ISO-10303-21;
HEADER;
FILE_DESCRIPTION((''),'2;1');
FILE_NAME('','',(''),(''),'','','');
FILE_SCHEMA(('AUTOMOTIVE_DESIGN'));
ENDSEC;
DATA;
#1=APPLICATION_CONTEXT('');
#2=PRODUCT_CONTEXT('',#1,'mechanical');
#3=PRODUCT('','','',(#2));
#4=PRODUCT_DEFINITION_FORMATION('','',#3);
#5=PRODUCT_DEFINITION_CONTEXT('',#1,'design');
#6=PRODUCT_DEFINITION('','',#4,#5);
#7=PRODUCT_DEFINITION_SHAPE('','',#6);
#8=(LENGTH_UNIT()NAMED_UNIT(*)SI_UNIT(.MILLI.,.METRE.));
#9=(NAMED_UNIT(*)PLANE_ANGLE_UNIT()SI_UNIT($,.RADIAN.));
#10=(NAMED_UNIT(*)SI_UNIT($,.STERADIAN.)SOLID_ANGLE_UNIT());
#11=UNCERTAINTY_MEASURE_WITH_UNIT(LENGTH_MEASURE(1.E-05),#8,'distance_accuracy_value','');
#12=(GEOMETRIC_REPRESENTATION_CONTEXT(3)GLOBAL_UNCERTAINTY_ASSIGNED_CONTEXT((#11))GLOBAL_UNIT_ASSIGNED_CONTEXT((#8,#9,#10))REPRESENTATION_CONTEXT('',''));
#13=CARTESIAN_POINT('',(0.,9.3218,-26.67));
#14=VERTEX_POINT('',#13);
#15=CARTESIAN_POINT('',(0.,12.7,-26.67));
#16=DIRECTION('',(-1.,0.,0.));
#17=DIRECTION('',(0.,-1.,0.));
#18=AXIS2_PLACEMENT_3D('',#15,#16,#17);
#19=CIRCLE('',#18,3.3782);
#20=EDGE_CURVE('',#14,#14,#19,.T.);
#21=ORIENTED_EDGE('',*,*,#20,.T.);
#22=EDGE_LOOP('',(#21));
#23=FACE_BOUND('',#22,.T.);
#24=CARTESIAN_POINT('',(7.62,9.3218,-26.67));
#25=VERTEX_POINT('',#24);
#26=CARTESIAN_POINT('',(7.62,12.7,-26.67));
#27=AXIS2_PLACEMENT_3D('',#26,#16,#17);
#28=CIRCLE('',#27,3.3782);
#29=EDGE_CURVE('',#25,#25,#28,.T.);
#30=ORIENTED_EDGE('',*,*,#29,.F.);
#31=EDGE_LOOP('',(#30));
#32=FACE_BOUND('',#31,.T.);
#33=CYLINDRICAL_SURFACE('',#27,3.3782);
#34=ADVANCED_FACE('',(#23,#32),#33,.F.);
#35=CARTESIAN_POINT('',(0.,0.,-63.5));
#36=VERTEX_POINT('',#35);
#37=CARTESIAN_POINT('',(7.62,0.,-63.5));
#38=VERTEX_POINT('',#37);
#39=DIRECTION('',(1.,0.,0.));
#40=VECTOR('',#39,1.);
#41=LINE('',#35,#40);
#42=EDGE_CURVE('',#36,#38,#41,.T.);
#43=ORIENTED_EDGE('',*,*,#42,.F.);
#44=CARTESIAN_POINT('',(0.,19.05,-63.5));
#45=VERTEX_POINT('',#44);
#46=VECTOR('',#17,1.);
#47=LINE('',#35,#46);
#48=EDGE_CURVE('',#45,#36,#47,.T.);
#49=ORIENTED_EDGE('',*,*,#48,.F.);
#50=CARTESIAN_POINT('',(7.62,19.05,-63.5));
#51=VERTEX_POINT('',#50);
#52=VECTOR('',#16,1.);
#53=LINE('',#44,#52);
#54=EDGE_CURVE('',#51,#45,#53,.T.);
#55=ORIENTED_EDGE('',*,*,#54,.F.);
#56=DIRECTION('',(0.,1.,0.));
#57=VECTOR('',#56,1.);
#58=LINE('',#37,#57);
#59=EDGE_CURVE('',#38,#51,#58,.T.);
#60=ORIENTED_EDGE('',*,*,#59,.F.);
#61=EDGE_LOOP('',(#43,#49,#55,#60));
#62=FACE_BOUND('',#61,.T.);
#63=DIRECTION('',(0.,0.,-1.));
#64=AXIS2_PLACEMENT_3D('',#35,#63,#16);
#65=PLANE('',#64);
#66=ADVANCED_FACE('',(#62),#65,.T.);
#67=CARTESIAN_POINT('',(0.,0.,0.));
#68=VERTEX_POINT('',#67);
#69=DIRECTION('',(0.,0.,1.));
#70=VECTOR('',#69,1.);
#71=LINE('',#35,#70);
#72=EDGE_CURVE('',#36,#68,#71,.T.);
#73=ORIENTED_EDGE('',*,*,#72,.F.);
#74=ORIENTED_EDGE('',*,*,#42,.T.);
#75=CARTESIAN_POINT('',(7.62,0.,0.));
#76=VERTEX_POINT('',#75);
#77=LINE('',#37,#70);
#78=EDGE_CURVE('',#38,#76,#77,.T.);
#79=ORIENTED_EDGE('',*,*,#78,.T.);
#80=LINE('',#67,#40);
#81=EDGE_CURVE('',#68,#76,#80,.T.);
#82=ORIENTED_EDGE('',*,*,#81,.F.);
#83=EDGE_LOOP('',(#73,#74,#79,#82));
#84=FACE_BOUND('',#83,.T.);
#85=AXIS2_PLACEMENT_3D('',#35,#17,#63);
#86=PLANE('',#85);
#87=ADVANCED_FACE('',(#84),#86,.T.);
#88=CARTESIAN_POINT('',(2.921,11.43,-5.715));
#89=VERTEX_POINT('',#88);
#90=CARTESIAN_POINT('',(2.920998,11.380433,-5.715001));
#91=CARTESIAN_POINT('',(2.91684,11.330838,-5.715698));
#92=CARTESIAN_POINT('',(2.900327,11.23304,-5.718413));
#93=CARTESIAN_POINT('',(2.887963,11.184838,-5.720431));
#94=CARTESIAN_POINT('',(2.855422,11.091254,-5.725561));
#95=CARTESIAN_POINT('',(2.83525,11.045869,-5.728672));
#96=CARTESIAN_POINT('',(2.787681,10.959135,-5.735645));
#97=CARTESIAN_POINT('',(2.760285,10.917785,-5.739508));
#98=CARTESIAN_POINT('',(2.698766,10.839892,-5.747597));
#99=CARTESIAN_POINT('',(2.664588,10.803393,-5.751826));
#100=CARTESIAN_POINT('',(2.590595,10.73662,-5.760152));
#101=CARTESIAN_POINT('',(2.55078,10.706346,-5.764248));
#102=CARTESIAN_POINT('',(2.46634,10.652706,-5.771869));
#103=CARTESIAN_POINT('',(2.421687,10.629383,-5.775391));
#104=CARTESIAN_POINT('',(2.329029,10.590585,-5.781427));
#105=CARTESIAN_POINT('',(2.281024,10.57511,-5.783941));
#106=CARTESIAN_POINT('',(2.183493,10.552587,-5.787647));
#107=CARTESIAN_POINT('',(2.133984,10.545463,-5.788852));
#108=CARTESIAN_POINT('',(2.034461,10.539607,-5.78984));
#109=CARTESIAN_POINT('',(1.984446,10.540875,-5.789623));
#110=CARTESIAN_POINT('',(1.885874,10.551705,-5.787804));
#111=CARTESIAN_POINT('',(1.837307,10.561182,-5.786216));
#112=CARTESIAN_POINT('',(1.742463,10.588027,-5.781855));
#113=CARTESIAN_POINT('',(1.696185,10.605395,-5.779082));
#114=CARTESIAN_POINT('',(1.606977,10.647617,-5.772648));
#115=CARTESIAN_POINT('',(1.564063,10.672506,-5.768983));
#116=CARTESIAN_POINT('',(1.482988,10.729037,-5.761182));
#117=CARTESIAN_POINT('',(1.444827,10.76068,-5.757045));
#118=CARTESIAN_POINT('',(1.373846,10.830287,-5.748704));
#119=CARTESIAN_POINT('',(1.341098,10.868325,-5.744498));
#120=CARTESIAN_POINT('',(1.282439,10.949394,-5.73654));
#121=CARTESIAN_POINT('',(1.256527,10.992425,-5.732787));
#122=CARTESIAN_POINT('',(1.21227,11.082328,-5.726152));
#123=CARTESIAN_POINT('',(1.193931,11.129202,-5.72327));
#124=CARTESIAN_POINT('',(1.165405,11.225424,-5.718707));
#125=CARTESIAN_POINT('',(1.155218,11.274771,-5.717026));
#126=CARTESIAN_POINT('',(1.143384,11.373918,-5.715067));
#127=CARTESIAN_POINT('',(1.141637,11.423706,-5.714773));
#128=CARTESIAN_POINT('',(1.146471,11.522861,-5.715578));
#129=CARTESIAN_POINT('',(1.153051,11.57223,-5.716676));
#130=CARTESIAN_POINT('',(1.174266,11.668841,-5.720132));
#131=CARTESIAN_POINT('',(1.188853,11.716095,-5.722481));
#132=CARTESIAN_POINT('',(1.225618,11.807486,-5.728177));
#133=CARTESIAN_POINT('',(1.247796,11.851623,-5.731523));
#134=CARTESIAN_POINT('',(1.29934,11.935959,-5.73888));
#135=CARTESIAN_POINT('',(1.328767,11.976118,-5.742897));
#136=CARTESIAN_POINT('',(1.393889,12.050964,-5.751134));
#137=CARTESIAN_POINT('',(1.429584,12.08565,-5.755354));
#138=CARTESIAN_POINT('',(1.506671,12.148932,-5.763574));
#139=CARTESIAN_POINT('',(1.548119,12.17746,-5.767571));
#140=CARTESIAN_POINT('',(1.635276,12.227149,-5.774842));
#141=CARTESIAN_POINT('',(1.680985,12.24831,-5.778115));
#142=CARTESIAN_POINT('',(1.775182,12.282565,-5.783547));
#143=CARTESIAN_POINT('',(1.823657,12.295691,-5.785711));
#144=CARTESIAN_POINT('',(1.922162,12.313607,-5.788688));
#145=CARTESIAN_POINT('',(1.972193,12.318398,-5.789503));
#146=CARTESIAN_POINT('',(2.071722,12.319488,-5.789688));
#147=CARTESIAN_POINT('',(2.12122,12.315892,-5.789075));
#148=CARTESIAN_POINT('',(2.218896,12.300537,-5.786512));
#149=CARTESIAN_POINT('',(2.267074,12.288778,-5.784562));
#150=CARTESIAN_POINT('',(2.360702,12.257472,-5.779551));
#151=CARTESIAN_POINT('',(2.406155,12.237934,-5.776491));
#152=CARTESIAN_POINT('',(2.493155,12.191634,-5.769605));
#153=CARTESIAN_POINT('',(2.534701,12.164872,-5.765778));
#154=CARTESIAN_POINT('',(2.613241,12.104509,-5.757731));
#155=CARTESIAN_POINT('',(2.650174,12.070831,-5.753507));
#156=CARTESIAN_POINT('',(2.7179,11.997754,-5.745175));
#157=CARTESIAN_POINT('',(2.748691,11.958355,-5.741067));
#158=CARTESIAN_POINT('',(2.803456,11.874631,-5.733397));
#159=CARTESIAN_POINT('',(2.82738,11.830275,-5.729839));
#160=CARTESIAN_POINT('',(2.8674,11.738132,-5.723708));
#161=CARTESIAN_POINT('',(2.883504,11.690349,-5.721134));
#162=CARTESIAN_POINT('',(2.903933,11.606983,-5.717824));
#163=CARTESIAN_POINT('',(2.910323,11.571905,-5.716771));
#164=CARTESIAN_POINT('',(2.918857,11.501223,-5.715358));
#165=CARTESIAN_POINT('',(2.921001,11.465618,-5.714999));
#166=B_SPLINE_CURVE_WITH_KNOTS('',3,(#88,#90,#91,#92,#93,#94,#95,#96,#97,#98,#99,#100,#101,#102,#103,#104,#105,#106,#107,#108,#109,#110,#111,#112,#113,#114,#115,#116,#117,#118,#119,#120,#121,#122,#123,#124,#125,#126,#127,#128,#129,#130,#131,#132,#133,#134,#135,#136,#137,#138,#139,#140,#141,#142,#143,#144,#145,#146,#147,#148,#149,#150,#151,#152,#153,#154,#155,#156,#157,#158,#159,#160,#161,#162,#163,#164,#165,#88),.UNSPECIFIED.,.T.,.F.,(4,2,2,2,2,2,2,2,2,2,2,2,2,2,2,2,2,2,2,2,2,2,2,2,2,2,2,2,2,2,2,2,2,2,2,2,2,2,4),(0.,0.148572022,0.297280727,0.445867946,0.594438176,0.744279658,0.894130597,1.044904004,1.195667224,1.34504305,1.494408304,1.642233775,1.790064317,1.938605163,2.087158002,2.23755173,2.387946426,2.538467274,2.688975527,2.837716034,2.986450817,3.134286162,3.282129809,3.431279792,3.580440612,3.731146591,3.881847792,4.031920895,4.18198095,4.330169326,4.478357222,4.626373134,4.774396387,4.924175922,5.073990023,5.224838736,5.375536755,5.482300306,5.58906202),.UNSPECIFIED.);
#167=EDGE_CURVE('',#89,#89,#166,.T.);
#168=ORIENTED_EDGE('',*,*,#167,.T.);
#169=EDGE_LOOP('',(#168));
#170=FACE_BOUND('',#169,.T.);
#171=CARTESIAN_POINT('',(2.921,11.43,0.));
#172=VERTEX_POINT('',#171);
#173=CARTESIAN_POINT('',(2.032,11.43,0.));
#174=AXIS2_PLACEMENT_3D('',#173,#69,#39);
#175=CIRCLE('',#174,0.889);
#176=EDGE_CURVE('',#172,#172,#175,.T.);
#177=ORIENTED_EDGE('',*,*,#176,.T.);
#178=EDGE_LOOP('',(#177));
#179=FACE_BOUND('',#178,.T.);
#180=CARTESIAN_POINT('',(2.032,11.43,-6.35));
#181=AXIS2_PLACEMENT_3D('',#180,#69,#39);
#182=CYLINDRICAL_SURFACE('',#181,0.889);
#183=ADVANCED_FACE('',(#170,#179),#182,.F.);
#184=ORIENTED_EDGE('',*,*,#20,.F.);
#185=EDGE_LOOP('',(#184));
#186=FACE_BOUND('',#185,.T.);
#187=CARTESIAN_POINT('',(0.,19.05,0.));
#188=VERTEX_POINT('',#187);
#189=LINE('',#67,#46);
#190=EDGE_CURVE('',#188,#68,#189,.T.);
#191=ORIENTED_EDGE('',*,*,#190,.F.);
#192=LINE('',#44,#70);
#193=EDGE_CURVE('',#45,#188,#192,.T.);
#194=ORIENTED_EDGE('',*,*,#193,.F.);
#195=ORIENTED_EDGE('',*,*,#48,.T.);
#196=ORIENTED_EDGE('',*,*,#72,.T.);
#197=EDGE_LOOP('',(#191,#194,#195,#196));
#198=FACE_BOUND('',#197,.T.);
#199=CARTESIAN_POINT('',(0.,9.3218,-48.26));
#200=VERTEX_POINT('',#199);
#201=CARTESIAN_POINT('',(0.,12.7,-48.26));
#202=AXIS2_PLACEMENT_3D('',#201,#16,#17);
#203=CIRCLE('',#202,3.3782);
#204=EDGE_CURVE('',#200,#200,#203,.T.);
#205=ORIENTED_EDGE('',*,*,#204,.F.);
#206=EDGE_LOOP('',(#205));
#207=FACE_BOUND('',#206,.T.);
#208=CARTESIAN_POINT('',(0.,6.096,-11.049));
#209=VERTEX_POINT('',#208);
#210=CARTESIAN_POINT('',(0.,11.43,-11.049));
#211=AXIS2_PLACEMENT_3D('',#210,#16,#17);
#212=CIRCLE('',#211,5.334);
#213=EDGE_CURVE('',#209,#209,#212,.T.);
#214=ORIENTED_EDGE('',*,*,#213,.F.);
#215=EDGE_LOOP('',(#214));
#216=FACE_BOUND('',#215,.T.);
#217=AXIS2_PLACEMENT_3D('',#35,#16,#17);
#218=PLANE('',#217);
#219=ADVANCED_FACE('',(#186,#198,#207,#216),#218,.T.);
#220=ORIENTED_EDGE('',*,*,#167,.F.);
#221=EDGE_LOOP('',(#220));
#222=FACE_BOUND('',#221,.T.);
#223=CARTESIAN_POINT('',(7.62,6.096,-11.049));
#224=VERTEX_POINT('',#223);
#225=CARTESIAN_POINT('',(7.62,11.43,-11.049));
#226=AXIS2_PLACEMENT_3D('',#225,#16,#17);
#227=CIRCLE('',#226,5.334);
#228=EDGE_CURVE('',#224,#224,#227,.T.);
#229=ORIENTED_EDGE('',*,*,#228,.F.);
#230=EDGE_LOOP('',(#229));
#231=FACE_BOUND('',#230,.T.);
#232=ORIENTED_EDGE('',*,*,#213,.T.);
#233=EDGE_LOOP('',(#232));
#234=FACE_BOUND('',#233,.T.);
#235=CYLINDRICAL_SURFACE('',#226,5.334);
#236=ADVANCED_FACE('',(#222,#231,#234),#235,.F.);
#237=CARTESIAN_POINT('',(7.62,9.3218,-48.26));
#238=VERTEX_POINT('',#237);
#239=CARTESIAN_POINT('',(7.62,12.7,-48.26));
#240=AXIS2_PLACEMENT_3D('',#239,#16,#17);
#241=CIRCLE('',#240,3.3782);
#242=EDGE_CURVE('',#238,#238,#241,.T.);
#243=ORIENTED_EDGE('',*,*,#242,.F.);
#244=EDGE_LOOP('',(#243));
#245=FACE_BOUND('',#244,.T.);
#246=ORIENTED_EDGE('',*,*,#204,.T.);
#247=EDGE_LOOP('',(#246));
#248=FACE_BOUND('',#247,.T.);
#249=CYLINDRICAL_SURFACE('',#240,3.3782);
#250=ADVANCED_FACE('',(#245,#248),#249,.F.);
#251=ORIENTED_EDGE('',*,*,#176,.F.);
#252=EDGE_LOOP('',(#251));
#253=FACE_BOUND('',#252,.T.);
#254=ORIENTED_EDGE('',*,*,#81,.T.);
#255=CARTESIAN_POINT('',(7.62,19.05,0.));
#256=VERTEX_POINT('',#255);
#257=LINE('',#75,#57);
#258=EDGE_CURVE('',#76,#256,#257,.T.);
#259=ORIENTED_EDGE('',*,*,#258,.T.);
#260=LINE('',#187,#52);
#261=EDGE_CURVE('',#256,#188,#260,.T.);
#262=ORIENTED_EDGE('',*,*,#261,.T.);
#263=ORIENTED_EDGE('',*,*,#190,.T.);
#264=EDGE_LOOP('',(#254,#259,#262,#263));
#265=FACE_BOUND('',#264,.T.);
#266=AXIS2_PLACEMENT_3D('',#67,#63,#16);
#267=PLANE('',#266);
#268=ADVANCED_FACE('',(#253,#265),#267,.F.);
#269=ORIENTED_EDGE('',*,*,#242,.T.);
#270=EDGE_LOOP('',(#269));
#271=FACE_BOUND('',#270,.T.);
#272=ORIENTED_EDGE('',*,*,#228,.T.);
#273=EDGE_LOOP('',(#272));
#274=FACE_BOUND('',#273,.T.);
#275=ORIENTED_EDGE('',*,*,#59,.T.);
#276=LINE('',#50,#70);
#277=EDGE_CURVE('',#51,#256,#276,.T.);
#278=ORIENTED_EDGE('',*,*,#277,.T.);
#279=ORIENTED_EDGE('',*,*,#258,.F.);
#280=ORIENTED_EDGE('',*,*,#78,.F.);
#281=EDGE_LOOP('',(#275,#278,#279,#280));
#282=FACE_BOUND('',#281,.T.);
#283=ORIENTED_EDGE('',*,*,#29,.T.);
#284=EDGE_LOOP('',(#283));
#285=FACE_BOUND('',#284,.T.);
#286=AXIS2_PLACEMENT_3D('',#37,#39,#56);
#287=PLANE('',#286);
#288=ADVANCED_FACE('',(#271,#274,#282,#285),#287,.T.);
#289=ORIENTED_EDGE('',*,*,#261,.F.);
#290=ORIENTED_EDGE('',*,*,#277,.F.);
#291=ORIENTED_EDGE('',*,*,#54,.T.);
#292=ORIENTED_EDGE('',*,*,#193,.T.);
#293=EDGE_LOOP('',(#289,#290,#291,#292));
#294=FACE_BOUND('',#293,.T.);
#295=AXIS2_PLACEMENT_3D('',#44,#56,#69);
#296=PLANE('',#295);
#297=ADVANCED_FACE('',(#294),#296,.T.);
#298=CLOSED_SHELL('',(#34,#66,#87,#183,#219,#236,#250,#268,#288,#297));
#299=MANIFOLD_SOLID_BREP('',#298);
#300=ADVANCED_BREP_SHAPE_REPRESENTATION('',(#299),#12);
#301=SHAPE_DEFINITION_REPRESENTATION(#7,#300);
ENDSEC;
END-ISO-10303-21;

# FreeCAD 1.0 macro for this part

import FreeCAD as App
import Part
import Sketcher

V = App.Vector
Q = App.Units.Quantity

doc = App.newDocument("Part")
params = doc.addObject("Spreadsheet::Sheet", "Params")
for row, (alias, value) in enumerate([
    ("sketch1_width", "0.3 in"),
    ("sketch1_height", "0.75 in"),
    ("pad1_length", "2.5 in"),
    ("sketch2_diameter", "0.07 in"),
    ("pocket1_length", "0.25 in"),
    ("sketch3_diameter", "0.266 in"),
    ("sketch4_diameter", "0.266 in"),
    ("sketch5_diameter", "0.42 in"),
], start=1):
    params.set(f"A{row}", alias)
    params.set(f"B{row}", "=" + value)
    params.setAlias(f"B{row}", alias)

body = doc.addObject("PartDesign::Body", "Body")

# Sketch on XY plane
sketch1 = body.newObject("Sketcher::SketchObject", "Sketch")
sketch1.AttachmentSupport = (doc.getObject("XY_Plane"), [""])
sketch1.MapMode = "FlatFace"
sketch1.addGeometry(Part.LineSegment(V(0, 19, 0), V(0, 0, 0)), False)
sketch1.addGeometry(Part.LineSegment(V(0, 0, 0), V(8, 0, 0)), False)
sketch1.addGeometry(Part.LineSegment(V(8, 0, 0), V(8, 19, 0)), False)
sketch1.addGeometry(Part.LineSegment(V(8, 19, 0), V(0, 19, 0)), False)
sketch1.addConstraint(Sketcher.Constraint("Coincident", 0, 2, 1, 1))
sketch1.addConstraint(Sketcher.Constraint("Coincident", 1, 2, 2, 1))
sketch1.addConstraint(Sketcher.Constraint("Coincident", 2, 2, 3, 1))
sketch1.addConstraint(Sketcher.Constraint("Coincident", 3, 2, 0, 1))
sketch1.addConstraint(Sketcher.Constraint("Vertical", 0))
sketch1.addConstraint(Sketcher.Constraint("Horizontal", 1))
sketch1.addConstraint(Sketcher.Constraint("Vertical", 2))
sketch1.addConstraint(Sketcher.Constraint("Horizontal", 3))
sketch1.addConstraint(Sketcher.Constraint("Coincident", 0, 2, -1, 1))
sketch1.addConstraint(Sketcher.Constraint("DistanceX", 1, 1, 1, 2, Q("0.3 in")))
sketch1.addConstraint(Sketcher.Constraint("DistanceY", 0, 2, 0, 1, Q("0.75 in")))
sketch1.setExpression("Constraints[9]", "Params.sketch1_width")
sketch1.setExpression("Constraints[10]", "Params.sketch1_height")
pad1 = body.newObject("PartDesign::Pad", "Pad")
pad1.Profile = sketch1
pad1.setExpression("Length", "Params.pad1_length")
pad1.Reversed = True

# Sketch on XY plane
sketch2 = body.newObject("Sketcher::SketchObject", "Sketch001")
sketch2.AttachmentSupport = (doc.getObject("XY_Plane"), [""])
sketch2.MapMode = "FlatFace"
sketch2.addGeometry(Part.Circle(V(2, 11.4, 0), V(0, 0, 1), 0.9), False)
sketch2.addConstraint(Sketcher.Constraint("Diameter", 0, Q("0.07 in")))
sketch2.addConstraint(Sketcher.Constraint("DistanceX", -1, 1, 0, 3, Q("0.08 in")))
sketch2.addConstraint(Sketcher.Constraint("DistanceY", -1, 1, 0, 3, Q("0.45 in")))
sketch2.setExpression("Constraints[0]", "Params.sketch2_diameter")
pocket1 = body.newObject("PartDesign::Pocket", "Pocket")
pocket1.Profile = sketch2
pocket1.setExpression("Length", "Params.pocket1_length")

# Sketch on YZ plane
sketch3 = body.newObject("Sketcher::SketchObject", "Sketch002")
sketch3.AttachmentSupport = (doc.getObject("YZ_Plane"), [""])
sketch3.MapMode = "FlatFace"
sketch3.addGeometry(Part.Circle(V(12.7, -48.3, 0), V(0, 0, 1), 3.4), False)
sketch3.addConstraint(Sketcher.Constraint("Diameter", 0, Q("0.266 in")))
sketch3.addConstraint(Sketcher.Constraint("DistanceX", -1, 1, 0, 3, Q("0.5 in")))
sketch3.addConstraint(Sketcher.Constraint("DistanceY", 0, 3, -1, 1, Q("1.9 in")))
sketch3.setExpression("Constraints[0]", "Params.sketch3_diameter")
pocket2 = body.newObject("PartDesign::Pocket", "Pocket001")
pocket2.Profile = sketch3
pocket2.Type = "ThroughAll"
pocket2.Reversed = True

# Sketch on YZ plane
sketch4 = body.newObject("Sketcher::SketchObject", "Sketch003")
sketch4.AttachmentSupport = (doc.getObject("YZ_Plane"), [""])
sketch4.MapMode = "FlatFace"
sketch4.addGeometry(Part.Circle(V(12.7, -26.7, 0), V(0, 0, 1), 3.4), False)
sketch4.addConstraint(Sketcher.Constraint("Diameter", 0, Q("0.266 in")))
sketch4.addConstraint(Sketcher.Constraint("DistanceX", -1, 1, 0, 3, Q("0.5 in")))
sketch4.addConstraint(Sketcher.Constraint("DistanceY", 0, 3, -1, 1, Q("1.05 in")))
sketch4.setExpression("Constraints[0]", "Params.sketch4_diameter")
pocket3 = body.newObject("PartDesign::Pocket", "Pocket002")
pocket3.Profile = sketch4
pocket3.Type = "ThroughAll"
pocket3.Reversed = True

# Sketch on YZ plane
sketch5 = body.newObject("Sketcher::SketchObject", "Sketch004")
sketch5.AttachmentSupport = (doc.getObject("YZ_Plane"), [""])
sketch5.MapMode = "FlatFace"
sketch5.addGeometry(Part.Circle(V(11, -11, 0), V(0, 0, 1), 5), False)
sketch5.addConstraint(Sketcher.Constraint("Diameter", 0, Q("0.42 in")))
sketch5.addConstraint(Sketcher.Constraint("DistanceX", -1, 1, 0, 3, Q("0.45 in")))
sketch5.addConstraint(Sketcher.Constraint("DistanceY", 0, 3, -1, 1, Q("0.435 in")))
sketch5.setExpression("Constraints[0]", "Params.sketch5_diameter")
pocket4 = body.newObject("PartDesign::Pocket", "Pocket003")
pocket4.Profile = sketch5
pocket4.Type = "ThroughAll"
pocket4.Reversed = True

doc.recompute()
